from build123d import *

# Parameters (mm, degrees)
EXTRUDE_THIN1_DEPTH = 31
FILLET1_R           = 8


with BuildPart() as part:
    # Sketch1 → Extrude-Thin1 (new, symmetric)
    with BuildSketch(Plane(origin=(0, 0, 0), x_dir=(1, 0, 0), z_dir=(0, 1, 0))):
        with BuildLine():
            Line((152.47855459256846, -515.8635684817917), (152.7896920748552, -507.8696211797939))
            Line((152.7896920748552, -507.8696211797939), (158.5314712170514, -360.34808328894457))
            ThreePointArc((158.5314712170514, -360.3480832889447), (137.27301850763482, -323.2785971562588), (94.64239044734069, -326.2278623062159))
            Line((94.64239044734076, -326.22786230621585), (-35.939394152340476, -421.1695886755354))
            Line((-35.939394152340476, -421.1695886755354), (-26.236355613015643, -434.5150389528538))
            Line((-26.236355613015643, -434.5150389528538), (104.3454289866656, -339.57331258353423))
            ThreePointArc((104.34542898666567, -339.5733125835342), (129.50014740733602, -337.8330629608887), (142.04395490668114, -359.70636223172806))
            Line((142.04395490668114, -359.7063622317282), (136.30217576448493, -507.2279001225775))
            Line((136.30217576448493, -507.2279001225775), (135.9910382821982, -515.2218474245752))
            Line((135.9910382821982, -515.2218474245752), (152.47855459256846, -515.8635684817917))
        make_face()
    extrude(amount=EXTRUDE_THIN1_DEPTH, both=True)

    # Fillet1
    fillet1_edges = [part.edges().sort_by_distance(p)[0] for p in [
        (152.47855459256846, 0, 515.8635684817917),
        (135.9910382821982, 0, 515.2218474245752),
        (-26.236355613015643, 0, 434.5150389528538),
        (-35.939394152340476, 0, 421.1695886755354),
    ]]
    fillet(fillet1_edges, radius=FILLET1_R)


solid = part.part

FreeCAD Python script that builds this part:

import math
import FreeCAD as App
import Part
import Sketcher

V = App.Vector


def edges_at(feature, points):
    """Names of the edges that pass closest to the given points."""
    edges = feature.Shape.Edges
    near = lambda p: min(range(len(edges)), key=lambda i: edges[i].distToShape(Part.Vertex(*p))[0])
    return sorted({f"Edge{near(p) + 1}" for p in points})

doc = App.newDocument("Part")
body = doc.addObject("PartDesign::Body", "Body")

# Sketch on XZ plane
sketch1 = body.newObject("Sketcher::SketchObject", "Sketch")
sketch1.AttachmentSupport = (doc.getObject("XZ_Plane"), [""])
sketch1.MapMode = "FlatFace"
sketch1.addGeometry([
    Part.LineSegment(V(152.478555, 515.863568, 0), V(158.531471, 360.348083, 0)),  # 0
    Part.ArcOfCircle(Part.Circle(V(118.311924, 358.782673, 0), V(0, 0, 1), 40.25), math.radians(-126.019669), math.radians(2.22892)),  # 1
    Part.LineSegment(V(94.64239, 326.227862, 0), V(-35.939394, 421.169589, 0)),  # 2
    Part.LineSegment(V(-35.939394, 421.169589, 0), V(-26.236356, 434.515039, 0)),  # 3
    Part.LineSegment(V(-26.236356, 434.515039, 0), V(104.345429, 339.573313, 0)),  # 4
    Part.ArcOfCircle(Part.Circle(V(118.311924, 358.782673, 0), V(0, 0, 1), 23.75), math.radians(-126.019669), math.radians(2.22892)),  # 5
    Part.LineSegment(V(142.043955, 359.706362, 0), V(135.991038, 515.221847, 0)),  # 6
    Part.LineSegment(V(135.991038, 515.221847, 0), V(152.478555, 515.863568, 0)),  # 7
], False)
sketch1.addConstraint([
    Sketcher.Constraint("Tangent", 0, 2, 1, 2),
    Sketcher.Constraint("Tangent", 1, 1, 2, 1),
    Sketcher.Constraint("Coincident", 2, 2, 3, 1),
    Sketcher.Constraint("Coincident", 3, 2, 4, 1),
    Sketcher.Constraint("Tangent", 4, 2, 5, 1),
    Sketcher.Constraint("Tangent", 5, 2, 6, 1),
    Sketcher.Constraint("Coincident", 6, 2, 7, 1),
    Sketcher.Constraint("Coincident", 7, 2, 0, 1),
    Sketcher.Constraint("Coincident", 5, 3, 1, 3),
    Sketcher.Constraint("Perpendicular", 2, 3),
    Sketcher.Constraint("Perpendicular", 3, 4),
    Sketcher.Constraint("Parallel", 0, 6),
    Sketcher.Constraint("Perpendicular", 6, 7),
    Sketcher.Constraint("Radius", 1, 40.25),
    Sketcher.Constraint("Radius", 5, 23.75),
    Sketcher.Constraint("DistanceY", 1, 1, 5, 2, 33.4785),
    Sketcher.Constraint("DistanceX", 5, 2, 7, 2, 10.4346),
    Sketcher.Constraint("Distance", 2, 161.448239),
    Sketcher.Constraint("DistanceX", -1, 1, 0, 2, 158.531471),
    Sketcher.Constraint("DistanceY", -1, 1, 2, 2, 421.169589),
    Sketcher.Constraint("DistanceX", -1, 1, 4, 2, 104.345429),
])
pad1 = body.newObject("PartDesign::Pad", "Pad")
pad1.Profile = sketch1
pad1.Length = 62
pad1.Midplane = True
doc.recompute()

fillet = body.newObject("PartDesign::Fillet", "Fillet")
fillet.Base = (pad1, edges_at(pad1, [
    (152.479, 0, 515.864),
    (135.991, 0, 515.222),
    (-26.236, 0, 434.515),
    (-35.939, 0, 421.17),
]))
fillet.Radius = 8

doc.recompute()
